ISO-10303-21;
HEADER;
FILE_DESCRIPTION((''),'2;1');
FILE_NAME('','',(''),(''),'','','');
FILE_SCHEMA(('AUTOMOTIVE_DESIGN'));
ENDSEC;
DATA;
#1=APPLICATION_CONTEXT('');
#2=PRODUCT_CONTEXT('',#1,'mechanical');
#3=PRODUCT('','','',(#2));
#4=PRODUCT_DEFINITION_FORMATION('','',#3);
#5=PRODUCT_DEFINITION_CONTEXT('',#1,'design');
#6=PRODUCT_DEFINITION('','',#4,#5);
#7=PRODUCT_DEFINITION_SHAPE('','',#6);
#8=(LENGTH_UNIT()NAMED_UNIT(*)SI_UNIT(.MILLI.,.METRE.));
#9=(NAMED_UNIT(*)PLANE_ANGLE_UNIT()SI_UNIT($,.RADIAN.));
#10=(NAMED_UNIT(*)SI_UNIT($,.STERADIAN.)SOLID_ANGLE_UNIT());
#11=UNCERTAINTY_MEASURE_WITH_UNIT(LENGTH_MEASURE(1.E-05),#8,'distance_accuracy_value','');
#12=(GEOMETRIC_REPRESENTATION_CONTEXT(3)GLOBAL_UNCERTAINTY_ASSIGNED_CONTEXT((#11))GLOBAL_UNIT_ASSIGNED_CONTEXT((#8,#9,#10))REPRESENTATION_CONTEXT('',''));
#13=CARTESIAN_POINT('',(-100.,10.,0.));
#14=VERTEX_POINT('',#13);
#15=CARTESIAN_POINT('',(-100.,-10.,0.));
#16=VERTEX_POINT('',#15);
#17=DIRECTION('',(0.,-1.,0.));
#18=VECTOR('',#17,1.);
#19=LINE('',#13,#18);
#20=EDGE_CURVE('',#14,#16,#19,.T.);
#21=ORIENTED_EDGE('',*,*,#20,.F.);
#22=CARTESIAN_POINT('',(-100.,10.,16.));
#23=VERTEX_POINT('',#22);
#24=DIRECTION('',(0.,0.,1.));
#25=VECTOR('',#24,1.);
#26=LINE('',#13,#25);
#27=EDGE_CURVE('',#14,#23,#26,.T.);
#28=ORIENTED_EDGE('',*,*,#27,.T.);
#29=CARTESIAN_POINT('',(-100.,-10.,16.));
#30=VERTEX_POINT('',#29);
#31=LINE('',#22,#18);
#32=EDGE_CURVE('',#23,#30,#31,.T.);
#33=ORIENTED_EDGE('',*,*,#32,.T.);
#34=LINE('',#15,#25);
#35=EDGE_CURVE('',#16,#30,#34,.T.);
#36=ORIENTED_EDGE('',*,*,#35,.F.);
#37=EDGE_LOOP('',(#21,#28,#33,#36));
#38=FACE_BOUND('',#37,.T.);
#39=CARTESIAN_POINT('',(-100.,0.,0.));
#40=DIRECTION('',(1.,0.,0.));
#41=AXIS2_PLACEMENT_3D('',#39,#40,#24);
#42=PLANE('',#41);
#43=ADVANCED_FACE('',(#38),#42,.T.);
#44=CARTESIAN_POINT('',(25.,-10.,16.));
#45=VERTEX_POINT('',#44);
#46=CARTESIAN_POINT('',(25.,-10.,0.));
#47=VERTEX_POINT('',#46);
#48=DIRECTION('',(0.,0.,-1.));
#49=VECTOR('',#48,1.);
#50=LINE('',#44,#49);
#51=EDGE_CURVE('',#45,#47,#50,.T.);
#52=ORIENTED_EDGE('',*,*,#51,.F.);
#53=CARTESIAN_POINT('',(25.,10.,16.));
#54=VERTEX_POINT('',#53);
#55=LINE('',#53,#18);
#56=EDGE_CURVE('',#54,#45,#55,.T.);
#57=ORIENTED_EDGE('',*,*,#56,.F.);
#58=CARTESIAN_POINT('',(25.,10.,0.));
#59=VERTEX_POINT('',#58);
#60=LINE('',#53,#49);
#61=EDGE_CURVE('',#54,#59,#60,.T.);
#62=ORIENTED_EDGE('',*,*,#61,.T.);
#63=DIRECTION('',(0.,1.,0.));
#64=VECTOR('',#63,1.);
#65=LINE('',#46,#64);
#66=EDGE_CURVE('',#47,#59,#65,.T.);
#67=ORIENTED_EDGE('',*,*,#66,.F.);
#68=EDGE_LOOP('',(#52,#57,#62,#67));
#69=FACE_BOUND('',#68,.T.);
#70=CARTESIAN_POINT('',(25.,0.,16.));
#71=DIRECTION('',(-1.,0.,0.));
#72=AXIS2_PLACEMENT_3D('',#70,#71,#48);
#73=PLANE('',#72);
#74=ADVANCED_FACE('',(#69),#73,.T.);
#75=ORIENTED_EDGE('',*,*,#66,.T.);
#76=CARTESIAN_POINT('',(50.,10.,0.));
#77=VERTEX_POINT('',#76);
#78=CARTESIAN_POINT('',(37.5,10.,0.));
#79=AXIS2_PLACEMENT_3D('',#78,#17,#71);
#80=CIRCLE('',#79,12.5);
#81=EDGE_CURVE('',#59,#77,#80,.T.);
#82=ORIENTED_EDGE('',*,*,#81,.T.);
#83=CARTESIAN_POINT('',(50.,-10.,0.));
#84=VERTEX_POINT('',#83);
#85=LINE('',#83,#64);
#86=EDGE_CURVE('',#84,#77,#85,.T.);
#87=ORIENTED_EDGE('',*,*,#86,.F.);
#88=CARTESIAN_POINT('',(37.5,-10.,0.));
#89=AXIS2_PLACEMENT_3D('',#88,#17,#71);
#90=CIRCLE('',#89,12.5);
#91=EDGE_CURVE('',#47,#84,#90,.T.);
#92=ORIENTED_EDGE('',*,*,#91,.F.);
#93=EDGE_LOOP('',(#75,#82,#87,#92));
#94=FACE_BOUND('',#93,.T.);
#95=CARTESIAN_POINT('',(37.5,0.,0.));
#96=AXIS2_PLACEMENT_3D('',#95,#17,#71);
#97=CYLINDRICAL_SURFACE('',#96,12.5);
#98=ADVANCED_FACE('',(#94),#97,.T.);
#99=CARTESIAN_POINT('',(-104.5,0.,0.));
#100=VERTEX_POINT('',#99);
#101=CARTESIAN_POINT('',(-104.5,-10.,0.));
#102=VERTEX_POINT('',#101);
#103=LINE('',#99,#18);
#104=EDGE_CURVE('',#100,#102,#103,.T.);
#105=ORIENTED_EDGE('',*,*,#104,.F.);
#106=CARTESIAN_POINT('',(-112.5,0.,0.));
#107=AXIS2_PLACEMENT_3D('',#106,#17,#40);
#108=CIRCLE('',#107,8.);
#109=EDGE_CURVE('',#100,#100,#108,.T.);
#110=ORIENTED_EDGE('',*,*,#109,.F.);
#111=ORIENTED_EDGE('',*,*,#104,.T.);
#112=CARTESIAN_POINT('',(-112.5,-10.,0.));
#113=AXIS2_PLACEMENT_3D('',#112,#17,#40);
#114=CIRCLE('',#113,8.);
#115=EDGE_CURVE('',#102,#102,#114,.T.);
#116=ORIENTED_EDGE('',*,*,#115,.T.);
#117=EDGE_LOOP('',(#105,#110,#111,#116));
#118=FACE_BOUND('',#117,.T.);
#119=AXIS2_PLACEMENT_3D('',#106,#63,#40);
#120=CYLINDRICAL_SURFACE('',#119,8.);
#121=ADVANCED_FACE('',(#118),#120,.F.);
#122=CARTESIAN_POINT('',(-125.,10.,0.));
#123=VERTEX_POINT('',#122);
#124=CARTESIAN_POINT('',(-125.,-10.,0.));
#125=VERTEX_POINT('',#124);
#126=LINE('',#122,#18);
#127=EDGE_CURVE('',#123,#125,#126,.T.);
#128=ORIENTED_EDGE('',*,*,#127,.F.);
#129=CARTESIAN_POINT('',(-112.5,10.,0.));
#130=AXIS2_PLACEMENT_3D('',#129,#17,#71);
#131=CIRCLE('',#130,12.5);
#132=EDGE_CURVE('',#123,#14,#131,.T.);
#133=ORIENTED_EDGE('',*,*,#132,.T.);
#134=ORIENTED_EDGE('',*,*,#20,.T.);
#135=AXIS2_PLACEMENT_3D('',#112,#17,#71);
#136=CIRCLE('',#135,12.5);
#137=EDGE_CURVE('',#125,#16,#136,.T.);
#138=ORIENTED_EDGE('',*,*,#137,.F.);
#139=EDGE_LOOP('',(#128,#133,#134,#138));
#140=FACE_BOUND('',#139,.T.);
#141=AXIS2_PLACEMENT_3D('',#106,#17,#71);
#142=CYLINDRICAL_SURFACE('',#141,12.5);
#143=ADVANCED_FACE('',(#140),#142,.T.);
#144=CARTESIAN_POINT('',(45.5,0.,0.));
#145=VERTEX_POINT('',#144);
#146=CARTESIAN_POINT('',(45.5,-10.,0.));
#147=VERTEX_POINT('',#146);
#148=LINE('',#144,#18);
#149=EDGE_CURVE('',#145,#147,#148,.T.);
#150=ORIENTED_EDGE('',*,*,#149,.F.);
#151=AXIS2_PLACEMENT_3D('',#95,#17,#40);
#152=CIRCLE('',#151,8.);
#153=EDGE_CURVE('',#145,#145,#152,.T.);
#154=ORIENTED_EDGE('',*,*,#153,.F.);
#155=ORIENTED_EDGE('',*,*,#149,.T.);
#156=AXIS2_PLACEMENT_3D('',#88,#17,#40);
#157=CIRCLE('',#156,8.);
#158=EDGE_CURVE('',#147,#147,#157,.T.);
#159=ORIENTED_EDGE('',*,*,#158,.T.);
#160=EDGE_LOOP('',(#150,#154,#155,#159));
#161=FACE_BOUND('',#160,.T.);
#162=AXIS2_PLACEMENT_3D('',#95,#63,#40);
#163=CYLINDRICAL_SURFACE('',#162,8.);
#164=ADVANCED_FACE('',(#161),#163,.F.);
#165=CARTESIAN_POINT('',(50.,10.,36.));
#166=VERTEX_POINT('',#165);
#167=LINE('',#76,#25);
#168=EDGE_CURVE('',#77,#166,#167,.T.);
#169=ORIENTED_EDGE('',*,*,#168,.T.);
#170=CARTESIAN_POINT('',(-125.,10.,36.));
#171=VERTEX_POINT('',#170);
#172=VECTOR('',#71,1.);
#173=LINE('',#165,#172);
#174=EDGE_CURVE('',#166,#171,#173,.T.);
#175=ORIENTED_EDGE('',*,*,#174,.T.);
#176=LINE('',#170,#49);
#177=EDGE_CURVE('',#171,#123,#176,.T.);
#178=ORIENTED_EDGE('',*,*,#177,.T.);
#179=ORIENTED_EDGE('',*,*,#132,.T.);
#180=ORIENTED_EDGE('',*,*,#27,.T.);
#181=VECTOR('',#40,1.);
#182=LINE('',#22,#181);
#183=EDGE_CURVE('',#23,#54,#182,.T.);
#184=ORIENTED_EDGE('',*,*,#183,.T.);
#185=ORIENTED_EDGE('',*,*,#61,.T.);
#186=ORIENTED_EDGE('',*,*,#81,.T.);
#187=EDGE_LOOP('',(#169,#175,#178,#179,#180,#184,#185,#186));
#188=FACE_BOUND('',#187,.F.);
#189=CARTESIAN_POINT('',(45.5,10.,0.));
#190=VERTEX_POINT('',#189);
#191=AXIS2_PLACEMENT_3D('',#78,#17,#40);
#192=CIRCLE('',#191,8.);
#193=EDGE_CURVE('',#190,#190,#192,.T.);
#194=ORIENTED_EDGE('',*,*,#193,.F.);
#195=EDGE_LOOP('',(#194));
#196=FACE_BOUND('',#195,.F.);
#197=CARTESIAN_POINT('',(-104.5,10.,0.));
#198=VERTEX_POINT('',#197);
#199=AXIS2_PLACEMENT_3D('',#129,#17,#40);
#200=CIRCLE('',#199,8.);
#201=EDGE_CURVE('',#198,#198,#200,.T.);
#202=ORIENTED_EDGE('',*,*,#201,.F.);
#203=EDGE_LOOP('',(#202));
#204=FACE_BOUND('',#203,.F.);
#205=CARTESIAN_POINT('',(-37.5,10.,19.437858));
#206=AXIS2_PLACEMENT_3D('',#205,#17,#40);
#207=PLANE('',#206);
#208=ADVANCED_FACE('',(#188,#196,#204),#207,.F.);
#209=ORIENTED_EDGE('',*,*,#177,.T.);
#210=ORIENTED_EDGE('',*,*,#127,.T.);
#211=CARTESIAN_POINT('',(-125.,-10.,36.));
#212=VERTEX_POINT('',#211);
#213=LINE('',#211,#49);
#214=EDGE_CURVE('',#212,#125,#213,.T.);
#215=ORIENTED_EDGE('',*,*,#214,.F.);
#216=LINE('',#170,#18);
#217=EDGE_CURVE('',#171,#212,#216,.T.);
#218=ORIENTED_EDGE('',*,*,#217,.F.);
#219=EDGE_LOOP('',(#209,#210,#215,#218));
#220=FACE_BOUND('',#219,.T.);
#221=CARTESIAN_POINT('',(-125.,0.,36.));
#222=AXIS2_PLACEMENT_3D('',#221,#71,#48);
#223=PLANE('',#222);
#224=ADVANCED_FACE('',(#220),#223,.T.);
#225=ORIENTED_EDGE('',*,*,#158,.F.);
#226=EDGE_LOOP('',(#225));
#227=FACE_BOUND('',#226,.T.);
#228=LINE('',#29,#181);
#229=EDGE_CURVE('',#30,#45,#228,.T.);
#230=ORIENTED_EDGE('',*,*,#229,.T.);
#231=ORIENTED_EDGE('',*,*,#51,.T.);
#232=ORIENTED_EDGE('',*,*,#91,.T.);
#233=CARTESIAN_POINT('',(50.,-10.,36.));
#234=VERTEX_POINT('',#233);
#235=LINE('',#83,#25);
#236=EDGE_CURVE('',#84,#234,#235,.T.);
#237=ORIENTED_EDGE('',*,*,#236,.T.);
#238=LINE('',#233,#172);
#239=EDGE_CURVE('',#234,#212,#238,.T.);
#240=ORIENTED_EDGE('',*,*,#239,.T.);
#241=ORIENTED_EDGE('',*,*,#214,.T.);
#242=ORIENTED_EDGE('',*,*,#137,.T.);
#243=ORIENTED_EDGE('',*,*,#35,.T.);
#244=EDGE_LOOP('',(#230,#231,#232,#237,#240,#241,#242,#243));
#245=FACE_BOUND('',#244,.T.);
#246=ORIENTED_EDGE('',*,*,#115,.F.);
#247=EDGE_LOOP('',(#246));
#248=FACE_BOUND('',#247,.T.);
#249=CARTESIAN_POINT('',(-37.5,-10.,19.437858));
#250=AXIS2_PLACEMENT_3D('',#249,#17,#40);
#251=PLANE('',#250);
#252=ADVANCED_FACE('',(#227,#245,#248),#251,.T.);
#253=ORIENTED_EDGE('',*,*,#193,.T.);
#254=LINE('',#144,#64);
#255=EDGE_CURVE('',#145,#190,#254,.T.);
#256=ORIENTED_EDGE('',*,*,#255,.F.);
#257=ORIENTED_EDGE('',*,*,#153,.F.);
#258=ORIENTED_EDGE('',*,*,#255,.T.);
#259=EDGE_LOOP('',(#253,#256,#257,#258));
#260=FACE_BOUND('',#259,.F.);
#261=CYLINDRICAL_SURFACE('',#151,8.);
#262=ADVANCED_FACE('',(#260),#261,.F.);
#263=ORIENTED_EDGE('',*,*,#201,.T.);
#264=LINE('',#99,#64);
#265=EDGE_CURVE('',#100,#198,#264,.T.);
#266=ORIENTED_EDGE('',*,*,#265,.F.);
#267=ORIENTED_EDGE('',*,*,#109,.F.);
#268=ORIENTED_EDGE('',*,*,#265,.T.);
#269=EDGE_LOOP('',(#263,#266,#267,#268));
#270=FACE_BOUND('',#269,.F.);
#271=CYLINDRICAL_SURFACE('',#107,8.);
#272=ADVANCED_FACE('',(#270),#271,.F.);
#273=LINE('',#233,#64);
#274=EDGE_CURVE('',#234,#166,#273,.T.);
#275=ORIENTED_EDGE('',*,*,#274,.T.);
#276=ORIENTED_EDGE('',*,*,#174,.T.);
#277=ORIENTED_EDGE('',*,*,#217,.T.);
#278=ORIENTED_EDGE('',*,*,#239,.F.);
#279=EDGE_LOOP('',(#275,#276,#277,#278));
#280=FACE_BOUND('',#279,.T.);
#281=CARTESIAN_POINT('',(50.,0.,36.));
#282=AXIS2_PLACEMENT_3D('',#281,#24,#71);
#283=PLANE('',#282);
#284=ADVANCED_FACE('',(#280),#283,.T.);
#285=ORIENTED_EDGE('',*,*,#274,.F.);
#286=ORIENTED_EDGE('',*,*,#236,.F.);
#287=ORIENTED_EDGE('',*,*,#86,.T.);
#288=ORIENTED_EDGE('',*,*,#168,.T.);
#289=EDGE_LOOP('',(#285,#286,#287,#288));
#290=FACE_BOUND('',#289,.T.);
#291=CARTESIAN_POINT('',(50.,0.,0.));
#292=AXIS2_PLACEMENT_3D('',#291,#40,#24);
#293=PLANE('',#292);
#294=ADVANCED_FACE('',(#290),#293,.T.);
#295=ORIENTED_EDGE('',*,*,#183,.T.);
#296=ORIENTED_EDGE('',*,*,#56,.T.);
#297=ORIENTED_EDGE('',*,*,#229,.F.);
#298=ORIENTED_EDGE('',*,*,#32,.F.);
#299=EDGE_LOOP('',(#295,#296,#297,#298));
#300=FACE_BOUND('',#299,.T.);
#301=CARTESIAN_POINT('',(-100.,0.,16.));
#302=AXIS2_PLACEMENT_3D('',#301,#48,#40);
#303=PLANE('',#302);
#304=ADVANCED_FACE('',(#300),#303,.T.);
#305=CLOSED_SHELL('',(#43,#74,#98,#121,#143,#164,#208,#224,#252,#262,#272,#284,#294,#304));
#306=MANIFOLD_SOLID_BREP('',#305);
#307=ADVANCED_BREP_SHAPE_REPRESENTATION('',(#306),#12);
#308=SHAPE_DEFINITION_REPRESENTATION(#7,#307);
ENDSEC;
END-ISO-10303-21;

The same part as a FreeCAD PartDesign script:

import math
import FreeCAD as App
import Part
import Sketcher

doc = App.newDocument("Part")
body = doc.addObject("PartDesign::Body", "Body")

# Sketch on XZ plane
sketch1 = doc.addObject("Sketcher::SketchObject", "Sketch")
body.addObject(sketch1)
sketch1.AttachmentSupport = (doc.XZ_Plane, [""])
sketch1.MapMode = "FlatFace"
sketch1.addGeometry([
    Part.LineSegment(App.Vector(50, 36, 0), App.Vector(-125, 36, 0)),  # 0
    Part.LineSegment(App.Vector(-125, 36, 0), App.Vector(-125, 0, 0)),  # 1
    Part.ArcOfCircle(Part.Circle(App.Vector(-112, 0, 0), App.Vector(0, 0, 1), 12), math.radians(180), math.radians(360)),  # 2
    Part.LineSegment(App.Vector(-100, 0, 0), App.Vector(-100, 16, 0)),  # 3
    Part.LineSegment(App.Vector(-100, 16, 0), App.Vector(25, 16, 0)),  # 4
    Part.LineSegment(App.Vector(25, 16, 0), App.Vector(25, 0, 0)),  # 5
    Part.ArcOfCircle(Part.Circle(App.Vector(38, 0, 0), App.Vector(0, 0, 1), 12), math.radians(180), math.radians(360)),  # 6
    Part.LineSegment(App.Vector(50, 0, 0), App.Vector(50, 36, 0)),  # 7
], False)
sketch1.addConstraint([
    Sketcher.Constraint("Coincident", 0, 2, 1, 1),
    Sketcher.Constraint("Tangent", 1, 2, 2, 1),
    Sketcher.Constraint("Tangent", 2, 2, 3, 1),
    Sketcher.Constraint("Coincident", 3, 2, 4, 1),
    Sketcher.Constraint("Coincident", 4, 2, 5, 1),
    Sketcher.Constraint("Tangent", 5, 2, 6, 1),
    Sketcher.Constraint("Tangent", 6, 2, 7, 1),
    Sketcher.Constraint("Coincident", 7, 2, 0, 1),
    Sketcher.Constraint("Horizontal", 0),
    Sketcher.Constraint("Vertical", 1),
    Sketcher.Constraint("Vertical", 3),
    Sketcher.Constraint("Horizontal", 4),
    Sketcher.Constraint("Vertical", 5),
    Sketcher.Constraint("Vertical", 7),
    Sketcher.Constraint("Equal", 2, 6),
    Sketcher.Constraint("PointOnObject", 2, 3, -1),
    Sketcher.Constraint("PointOnObject", 6, 3, -1),
    Sketcher.Constraint("Radius", 2, 12.5),
    Sketcher.Constraint("DistanceX", 0, 2, 0, 1, 175.0),
    Sketcher.Constraint("DistanceY", 1, 2, 1, 1, 36.0),
    Sketcher.Constraint("DistanceY", 3, 1, 3, 2, 16.0),
    Sketcher.Constraint("DistanceX", 0, 2, -1, 1, 125.0),
])
pad1 = doc.addObject("PartDesign::Pad", "Pad")
body.addObject(pad1)
pad1.Profile = sketch1
pad1.Type = "TwoLengths"
pad1.Length = 10
pad1.Length2 = 10

# Sketch on XZ plane
sketch2 = doc.addObject("Sketcher::SketchObject", "Sketch001")
body.addObject(sketch2)
sketch2.AttachmentSupport = (doc.XZ_Plane, [""])
sketch2.MapMode = "FlatFace"
sketch2.addGeometry([
    Part.Circle(App.Vector(-112, 0, 0), App.Vector(0, 0, 1), 8),
    Part.Circle(App.Vector(38, 0, 0), App.Vector(0, 0, 1), 8),
], False)
sketch2.addConstraint([
    Sketcher.Constraint("Equal", 0, 1),
    Sketcher.Constraint("PointOnObject", 0, 3, -1),
    Sketcher.Constraint("PointOnObject", 1, 3, -1),
    Sketcher.Constraint("Diameter", 0, 16.0),
    Sketcher.Constraint("DistanceX", 0, 3, 1, 3, 150.0),
    Sketcher.Constraint("DistanceX", 0, 3, -1, 1, 112.5),
])
pocket1 = doc.addObject("PartDesign::Pocket", "Pocket")
body.addObject(pocket1)
pocket1.Profile = sketch2
pocket1.Type = "ThroughAll"
pocket1.Midplane = True

doc.recompute()
